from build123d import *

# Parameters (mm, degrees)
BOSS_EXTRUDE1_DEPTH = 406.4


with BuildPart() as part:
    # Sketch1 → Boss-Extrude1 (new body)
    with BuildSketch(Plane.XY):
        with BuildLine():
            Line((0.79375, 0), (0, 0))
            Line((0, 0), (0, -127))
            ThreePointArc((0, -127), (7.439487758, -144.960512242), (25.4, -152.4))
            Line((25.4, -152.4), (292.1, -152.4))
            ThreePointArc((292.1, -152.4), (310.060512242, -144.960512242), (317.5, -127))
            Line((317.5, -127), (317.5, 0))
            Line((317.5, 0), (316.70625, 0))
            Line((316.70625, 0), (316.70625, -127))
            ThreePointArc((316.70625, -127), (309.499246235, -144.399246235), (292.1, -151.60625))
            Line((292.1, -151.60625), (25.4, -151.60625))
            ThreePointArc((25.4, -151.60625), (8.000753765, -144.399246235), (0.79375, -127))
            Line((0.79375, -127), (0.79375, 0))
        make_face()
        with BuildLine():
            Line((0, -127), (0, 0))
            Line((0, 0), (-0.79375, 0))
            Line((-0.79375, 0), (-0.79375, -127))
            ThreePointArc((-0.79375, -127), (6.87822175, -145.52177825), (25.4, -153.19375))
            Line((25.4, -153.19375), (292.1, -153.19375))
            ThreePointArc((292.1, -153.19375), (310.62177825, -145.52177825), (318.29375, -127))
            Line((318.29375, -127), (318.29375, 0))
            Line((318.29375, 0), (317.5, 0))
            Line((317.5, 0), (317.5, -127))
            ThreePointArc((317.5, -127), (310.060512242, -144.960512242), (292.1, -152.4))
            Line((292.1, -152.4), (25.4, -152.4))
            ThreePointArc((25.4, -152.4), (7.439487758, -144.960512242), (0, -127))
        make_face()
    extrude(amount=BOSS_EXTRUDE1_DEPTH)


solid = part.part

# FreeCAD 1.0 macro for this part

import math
import FreeCAD as App
import Part
import Sketcher
from FreeCAD import Vector
Q = App.Units.Quantity

doc = App.newDocument("Part")
body = doc.addObject("PartDesign::Body", "Body")

# Sketch on XY plane
sketch1 = doc.addObject("Sketcher::SketchObject", "Sketch")
body.addObject(sketch1)
sketch1.AttachmentSupport = (doc.XY_Plane, [""])
sketch1.MapMode = "FlatFace"
sketch1.addGeometry(Part.LineSegment(Vector(0.8, 0, 0), Vector(-0.8, 0, 0)), False)
sketch1.addGeometry(Part.LineSegment(Vector(-0.8, 0, 0), Vector(-0.8, -127, 0)), False)
sketch1.addGeometry(Part.ArcOfCircle(Part.Circle(Vector(25.4, -127, 0), Vector(0, 0, 1), 26.2), math.radians(180), math.radians(270)), False)
sketch1.addGeometry(Part.LineSegment(Vector(25.4, -153.2, 0), Vector(292.1, -153.2, 0)), False)
sketch1.addGeometry(Part.ArcOfCircle(Part.Circle(Vector(292.1, -127, 0), Vector(0, 0, 1), 26.2), math.radians(-90), math.radians(0)), False)
sketch1.addGeometry(Part.LineSegment(Vector(318.3, -127, 0), Vector(318.3, 0, 0)), False)
sketch1.addGeometry(Part.LineSegment(Vector(318.3, 0, 0), Vector(316.7, 0, 0)), False)
sketch1.addGeometry(Part.LineSegment(Vector(316.7, 0, 0), Vector(316.7, -127, 0)), False)
sketch1.addGeometry(Part.ArcOfCircle(Part.Circle(Vector(292.1, -127, 0), Vector(0, 0, 1), 24.6), math.radians(-90), math.radians(0)), False)
sketch1.addGeometry(Part.LineSegment(Vector(292.1, -151.6, 0), Vector(25.4, -151.6, 0)), False)
sketch1.addGeometry(Part.ArcOfCircle(Part.Circle(Vector(25.4, -127, 0), Vector(0, 0, 1), 24.6), math.radians(180), math.radians(270)), False)
sketch1.addGeometry(Part.LineSegment(Vector(0.8, -127, 0), Vector(0.8, 0, 0)), False)
sketch1.addConstraint(Sketcher.Constraint("Coincident", 0, 2, 1, 1))
sketch1.addConstraint(Sketcher.Constraint("Tangent", 1, 2, 2, 1))
sketch1.addConstraint(Sketcher.Constraint("Tangent", 2, 2, 3, 1))
sketch1.addConstraint(Sketcher.Constraint("Tangent", 3, 2, 4, 1))
sketch1.addConstraint(Sketcher.Constraint("Tangent", 4, 2, 5, 1))
sketch1.addConstraint(Sketcher.Constraint("Coincident", 5, 2, 6, 1))
sketch1.addConstraint(Sketcher.Constraint("Coincident", 6, 2, 7, 1))
sketch1.addConstraint(Sketcher.Constraint("Tangent", 7, 2, 8, 2))
sketch1.addConstraint(Sketcher.Constraint("Tangent", 8, 1, 9, 1))
sketch1.addConstraint(Sketcher.Constraint("Tangent", 9, 2, 10, 2))
sketch1.addConstraint(Sketcher.Constraint("Tangent", 10, 1, 11, 1))
sketch1.addConstraint(Sketcher.Constraint("Coincident", 11, 2, 0, 1))
sketch1.addConstraint(Sketcher.Constraint("Horizontal", 0))
sketch1.addConstraint(Sketcher.Constraint("Vertical", 1))
sketch1.addConstraint(Sketcher.Constraint("Horizontal", 3))
sketch1.addConstraint(Sketcher.Constraint("Vertical", 5))
sketch1.addConstraint(Sketcher.Constraint("Horizontal", 6))
sketch1.addConstraint(Sketcher.Constraint("Vertical", 7))
sketch1.addConstraint(Sketcher.Constraint("Horizontal", 9))
sketch1.addConstraint(Sketcher.Constraint("Vertical", 11))
sketch1.addConstraint(Sketcher.Constraint("Coincident", 8, 3, 4, 3))
sketch1.addConstraint(Sketcher.Constraint("Coincident", 10, 3, 2, 3))
sketch1.addConstraint(Sketcher.Constraint("Equal", 2, 4))
sketch1.addConstraint(Sketcher.Constraint("Symmetric", 0, 2, 11, 2, -1, 1))
sketch1.addConstraint(Sketcher.Constraint("PointOnObject", 5, 2, -1))
sketch1.addConstraint(Sketcher.Constraint("DistanceY", 1, 2, 1, 1, Q("5 in")))
sketch1.addConstraint(Sketcher.Constraint("DistanceX", 3, 1, 3, 2, Q("10.5 in")))
sketch1.addConstraint(Sketcher.Constraint("DistanceX", -1, 1, 2, 3, Q("1 in")))
sketch1.addConstraint(Sketcher.Constraint("Radius", 2, Q("1.03125 in")))
pad1 = doc.addObject("PartDesign::Pad", "Pad")
body.addObject(pad1)
pad1.Profile = sketch1
pad1.Length = Q("16 in")

doc.recompute()
